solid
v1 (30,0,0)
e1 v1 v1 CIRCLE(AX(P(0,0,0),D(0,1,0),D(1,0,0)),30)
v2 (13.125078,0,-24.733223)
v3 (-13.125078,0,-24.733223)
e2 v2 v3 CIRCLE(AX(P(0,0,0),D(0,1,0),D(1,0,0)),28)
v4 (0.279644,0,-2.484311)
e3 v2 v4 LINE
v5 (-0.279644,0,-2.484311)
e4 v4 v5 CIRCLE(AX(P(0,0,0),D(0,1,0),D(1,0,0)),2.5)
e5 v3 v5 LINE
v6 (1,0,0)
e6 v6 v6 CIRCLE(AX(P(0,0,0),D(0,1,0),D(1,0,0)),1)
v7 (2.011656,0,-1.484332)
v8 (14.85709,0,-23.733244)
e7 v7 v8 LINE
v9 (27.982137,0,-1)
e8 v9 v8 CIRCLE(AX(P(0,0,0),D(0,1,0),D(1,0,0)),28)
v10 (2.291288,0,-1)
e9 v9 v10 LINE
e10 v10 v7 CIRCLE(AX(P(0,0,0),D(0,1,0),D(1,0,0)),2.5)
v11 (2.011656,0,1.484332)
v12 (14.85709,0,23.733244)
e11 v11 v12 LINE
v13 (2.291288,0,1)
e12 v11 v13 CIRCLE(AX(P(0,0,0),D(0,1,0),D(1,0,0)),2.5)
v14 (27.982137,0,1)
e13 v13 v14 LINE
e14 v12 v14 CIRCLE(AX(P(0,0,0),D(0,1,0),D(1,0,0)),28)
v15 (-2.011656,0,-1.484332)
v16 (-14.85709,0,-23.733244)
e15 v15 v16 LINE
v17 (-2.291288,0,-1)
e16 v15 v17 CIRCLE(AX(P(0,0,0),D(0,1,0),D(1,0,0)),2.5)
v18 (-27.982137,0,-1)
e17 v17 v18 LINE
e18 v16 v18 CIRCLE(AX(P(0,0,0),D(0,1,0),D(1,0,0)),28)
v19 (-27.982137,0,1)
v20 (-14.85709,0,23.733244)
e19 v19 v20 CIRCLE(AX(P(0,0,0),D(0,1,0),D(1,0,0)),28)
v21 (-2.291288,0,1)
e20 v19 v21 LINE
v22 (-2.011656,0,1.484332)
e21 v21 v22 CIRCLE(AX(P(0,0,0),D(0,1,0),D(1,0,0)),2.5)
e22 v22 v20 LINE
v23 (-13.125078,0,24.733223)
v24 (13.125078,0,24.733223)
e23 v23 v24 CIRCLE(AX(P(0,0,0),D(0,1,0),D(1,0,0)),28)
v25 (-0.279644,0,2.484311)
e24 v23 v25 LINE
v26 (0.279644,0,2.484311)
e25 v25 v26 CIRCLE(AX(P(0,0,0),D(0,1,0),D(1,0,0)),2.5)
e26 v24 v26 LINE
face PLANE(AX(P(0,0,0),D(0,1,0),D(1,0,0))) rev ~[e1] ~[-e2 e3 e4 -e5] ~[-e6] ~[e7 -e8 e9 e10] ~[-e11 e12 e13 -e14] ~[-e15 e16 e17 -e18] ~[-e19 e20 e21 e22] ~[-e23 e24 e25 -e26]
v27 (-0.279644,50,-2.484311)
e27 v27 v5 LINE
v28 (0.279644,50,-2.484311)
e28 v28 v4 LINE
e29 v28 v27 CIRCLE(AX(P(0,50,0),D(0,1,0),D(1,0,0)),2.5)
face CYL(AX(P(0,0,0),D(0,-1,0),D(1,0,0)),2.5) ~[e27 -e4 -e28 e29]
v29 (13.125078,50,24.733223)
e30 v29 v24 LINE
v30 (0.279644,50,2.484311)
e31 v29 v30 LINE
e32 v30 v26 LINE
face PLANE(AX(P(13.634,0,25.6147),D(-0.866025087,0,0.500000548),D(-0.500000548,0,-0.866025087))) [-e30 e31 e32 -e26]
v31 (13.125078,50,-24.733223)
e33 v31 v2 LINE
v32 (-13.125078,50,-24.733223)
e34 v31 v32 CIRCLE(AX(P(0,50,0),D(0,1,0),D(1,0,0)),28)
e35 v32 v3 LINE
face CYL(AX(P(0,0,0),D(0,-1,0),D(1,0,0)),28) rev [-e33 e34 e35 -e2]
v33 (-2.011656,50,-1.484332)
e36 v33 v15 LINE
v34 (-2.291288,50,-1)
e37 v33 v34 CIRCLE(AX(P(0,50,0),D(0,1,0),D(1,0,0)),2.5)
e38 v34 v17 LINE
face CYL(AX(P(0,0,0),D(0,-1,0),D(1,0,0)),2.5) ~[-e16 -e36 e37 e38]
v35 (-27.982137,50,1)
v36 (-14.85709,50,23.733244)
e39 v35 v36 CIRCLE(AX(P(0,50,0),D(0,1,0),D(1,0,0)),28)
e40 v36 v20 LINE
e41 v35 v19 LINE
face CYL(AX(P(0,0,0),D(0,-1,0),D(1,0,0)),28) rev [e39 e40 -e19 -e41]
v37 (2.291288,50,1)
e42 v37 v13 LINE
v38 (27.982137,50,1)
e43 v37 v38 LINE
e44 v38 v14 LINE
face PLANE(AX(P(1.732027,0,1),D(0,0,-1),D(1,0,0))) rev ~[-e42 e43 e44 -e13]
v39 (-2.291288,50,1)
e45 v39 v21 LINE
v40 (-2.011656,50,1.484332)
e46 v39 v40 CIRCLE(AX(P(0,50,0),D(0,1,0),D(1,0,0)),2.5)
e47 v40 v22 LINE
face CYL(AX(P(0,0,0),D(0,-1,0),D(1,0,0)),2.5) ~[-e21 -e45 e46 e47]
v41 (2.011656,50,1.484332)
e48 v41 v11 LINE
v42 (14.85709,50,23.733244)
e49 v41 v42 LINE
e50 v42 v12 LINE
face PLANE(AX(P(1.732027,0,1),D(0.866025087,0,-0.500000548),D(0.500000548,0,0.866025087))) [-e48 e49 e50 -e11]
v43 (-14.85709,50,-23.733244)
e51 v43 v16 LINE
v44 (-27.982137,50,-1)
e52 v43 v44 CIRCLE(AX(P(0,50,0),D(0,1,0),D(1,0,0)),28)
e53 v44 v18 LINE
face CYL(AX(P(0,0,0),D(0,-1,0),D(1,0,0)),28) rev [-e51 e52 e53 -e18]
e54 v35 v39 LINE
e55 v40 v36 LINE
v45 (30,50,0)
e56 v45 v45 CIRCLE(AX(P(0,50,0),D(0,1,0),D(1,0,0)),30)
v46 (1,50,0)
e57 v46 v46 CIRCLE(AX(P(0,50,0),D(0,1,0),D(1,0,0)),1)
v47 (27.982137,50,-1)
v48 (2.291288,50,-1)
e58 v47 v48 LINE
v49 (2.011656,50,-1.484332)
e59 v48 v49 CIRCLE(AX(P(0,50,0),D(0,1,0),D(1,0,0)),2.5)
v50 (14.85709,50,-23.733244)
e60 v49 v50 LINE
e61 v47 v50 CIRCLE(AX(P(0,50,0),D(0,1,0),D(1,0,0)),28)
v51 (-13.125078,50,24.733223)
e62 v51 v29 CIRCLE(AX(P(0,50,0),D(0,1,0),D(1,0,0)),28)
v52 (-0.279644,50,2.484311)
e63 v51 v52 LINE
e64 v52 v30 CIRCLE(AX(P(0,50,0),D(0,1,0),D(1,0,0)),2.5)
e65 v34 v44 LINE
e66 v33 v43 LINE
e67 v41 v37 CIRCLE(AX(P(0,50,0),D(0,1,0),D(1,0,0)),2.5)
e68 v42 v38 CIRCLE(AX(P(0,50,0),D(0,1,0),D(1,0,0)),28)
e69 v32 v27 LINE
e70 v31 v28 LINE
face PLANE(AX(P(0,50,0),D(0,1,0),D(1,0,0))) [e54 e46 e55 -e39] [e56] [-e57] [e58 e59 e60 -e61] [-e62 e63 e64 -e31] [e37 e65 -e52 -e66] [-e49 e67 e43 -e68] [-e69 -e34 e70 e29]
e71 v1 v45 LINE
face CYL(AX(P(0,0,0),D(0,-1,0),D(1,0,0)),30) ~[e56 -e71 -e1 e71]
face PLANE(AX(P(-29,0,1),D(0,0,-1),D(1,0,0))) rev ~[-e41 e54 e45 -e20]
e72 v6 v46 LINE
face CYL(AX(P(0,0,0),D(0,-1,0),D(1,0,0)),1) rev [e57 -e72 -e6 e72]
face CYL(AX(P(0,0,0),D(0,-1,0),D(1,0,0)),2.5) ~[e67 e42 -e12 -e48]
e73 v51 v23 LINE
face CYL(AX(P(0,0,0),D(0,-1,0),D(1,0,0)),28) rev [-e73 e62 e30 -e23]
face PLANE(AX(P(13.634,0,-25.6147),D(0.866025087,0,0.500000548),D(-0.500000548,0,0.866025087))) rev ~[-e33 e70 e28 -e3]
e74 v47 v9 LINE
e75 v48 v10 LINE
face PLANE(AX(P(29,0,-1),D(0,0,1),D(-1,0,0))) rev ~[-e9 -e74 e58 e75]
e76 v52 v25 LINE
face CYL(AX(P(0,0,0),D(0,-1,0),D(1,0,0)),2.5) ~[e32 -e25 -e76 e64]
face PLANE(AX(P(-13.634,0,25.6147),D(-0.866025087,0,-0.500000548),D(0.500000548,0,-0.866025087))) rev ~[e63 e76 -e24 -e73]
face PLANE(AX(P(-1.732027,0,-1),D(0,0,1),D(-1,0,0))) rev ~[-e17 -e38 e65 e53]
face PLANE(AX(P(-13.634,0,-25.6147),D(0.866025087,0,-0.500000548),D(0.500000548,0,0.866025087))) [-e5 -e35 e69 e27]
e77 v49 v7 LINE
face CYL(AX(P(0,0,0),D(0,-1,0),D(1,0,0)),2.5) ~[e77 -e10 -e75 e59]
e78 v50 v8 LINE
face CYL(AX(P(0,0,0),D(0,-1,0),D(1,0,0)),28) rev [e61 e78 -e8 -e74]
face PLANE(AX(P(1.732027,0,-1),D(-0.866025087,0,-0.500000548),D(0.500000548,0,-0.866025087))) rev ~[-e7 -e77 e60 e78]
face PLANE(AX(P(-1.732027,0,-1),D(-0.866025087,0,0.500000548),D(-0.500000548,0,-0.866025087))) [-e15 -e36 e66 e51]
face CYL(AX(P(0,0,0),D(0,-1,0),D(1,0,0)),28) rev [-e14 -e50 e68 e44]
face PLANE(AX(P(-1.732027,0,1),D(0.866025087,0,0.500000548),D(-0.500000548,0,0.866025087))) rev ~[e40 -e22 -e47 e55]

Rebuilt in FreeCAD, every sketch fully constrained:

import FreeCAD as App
import Part
import Sketcher

V = App.Vector
Q = App.Units.Quantity


def add_polygon(sketch, points):
    """Adds a closed chain of lines whose ends are joined by coincident constraints."""
    first, n = sketch.GeometryCount, len(points)
    for a, b in zip(points, points[1:] + points[:1]):
        sketch.addGeometry(Part.LineSegment(App.Vector(*a, 0), App.Vector(*b, 0)), False)
    for i in range(n):
        sketch.addConstraint(Sketcher.Constraint("Coincident", first + i, 2, first + (i + 1) % n, 1))

doc = App.newDocument("Part")
body = doc.addObject("PartDesign::Body", "Body")
body.AllowCompound = True

sketch1 = body.newObject("Sketcher::SketchObject", "Sketch")
sketch1.AttachmentSupport = (doc.getObject("XZ_Plane"), [""])
sketch1.MapMode = "FlatFace"
sketch1.addGeometry(Part.Circle(V(0, 0, 0), V(0, 0, 1), 30), False)
sketch1.addGeometry(Part.Circle(V(0, 0, 0), V(0, 0, 1), 28), False)
sketch1.addGeometry(Part.Circle(V(0, 0, 0), V(0, 0, 1), 2.5), False)
sketch1.addGeometry(Part.Circle(V(0, 0, 0), V(0, 0, 1), 1), False)
sketch1.addConstraint(Sketcher.Constraint("Coincident", 0, 3, -1, 1))
sketch1.addConstraint(Sketcher.Constraint("Coincident", 1, 3, -1, 1))
sketch1.addConstraint(Sketcher.Constraint("Coincident", 2, 3, -1, 1))
sketch1.addConstraint(Sketcher.Constraint("Coincident", 3, 3, -1, 1))
sketch1.addConstraint(Sketcher.Constraint("Diameter", 0, Q("60 mm")))
sketch1.addConstraint(Sketcher.Constraint("Diameter", 1, Q("56 mm")))
sketch1.addConstraint(Sketcher.Constraint("Diameter", 2, Q("5 mm")))
sketch1.addConstraint(Sketcher.Constraint("Diameter", 3, Q("2 mm")))
pad1 = body.newObject("PartDesign::Pad", "Pad")
pad1.Profile = sketch1
pad1.Length = 50
pad1.Reversed = True

sketch2 = body.newObject("Sketcher::SketchObject", "Sketch001")
sketch2.AttachmentSupport = (doc.getObject("XZ_Plane"), [""])
sketch2.MapMode = "FlatFace"
add_polygon(sketch2, [(-15.366, 24.6147), (-13.634, 25.6147), (0, 1.999954), (-0.577324, 1), (-1.732027, 1)])
add_polygon(sketch2, [(0.577324, 1), (0, 1.999954), (13.634, 25.6147), (15.366, 24.6147), (1.732027, 1)])
add_polygon(sketch2, [(-29, 1), (-1.732027, 1), (-1.154676, 0), (-1.732027, -1), (-29, -1)])
add_polygon(sketch2, [(1.732027, -1), (1.154676, 0), (1.732027, 1), (29, 1), (29, -1)])
add_polygon(sketch2, [(0.577324, -1), (1.732027, -1), (15.366, -24.6147), (13.634, -25.6147), (0, -1.999954)])
add_polygon(sketch2, [(-1.732027, -1), (-0.577324, -1), (0, -1.999954), (-13.634, -25.6147), (-15.366, -24.6147)])
sketch2.addConstraint(Sketcher.Constraint("Horizontal", 3))
sketch2.addConstraint(Sketcher.Constraint("Horizontal", 9))
sketch2.addConstraint(Sketcher.Constraint("Horizontal", 10))
sketch2.addConstraint(Sketcher.Constraint("Horizontal", 13))
sketch2.addConstraint(Sketcher.Constraint("Vertical", 14))
sketch2.addConstraint(Sketcher.Constraint("Horizontal", 17))
sketch2.addConstraint(Sketcher.Constraint("Vertical", 18))
sketch2.addConstraint(Sketcher.Constraint("Horizontal", 19))
sketch2.addConstraint(Sketcher.Constraint("Horizontal", 20))
sketch2.addConstraint(Sketcher.Constraint("Horizontal", 25))
sketch2.addConstraint(Sketcher.Constraint("Coincident", 5, 2, 1, 2))
sketch2.addConstraint(Sketcher.Constraint("Coincident", 10, 2, 3, 2))
sketch2.addConstraint(Sketcher.Constraint("Coincident", 16, 2, 8, 2))
sketch2.addConstraint(Sketcher.Constraint("Coincident", 20, 2, 19, 2))
sketch2.addConstraint(Sketcher.Constraint("Coincident", 26, 2, 23, 2))
sketch2.addConstraint(Sketcher.Constraint("Coincident", 29, 2, 12, 2))
sketch2.addConstraint(Sketcher.Constraint("Symmetric", 8, 2, 12, 2, -1, 1))
sketch2.addConstraint(Sketcher.Constraint("Symmetric", 11, 2, 15, 2, -1, 1))
sketch2.addConstraint(Sketcher.Constraint("Symmetric", 14, 2, 18, 2, -1, 1))
sketch2.addConstraint(Sketcher.Constraint("Symmetric", 4, 2, 21, 2, -1, 1))
sketch2.addConstraint(Sketcher.Constraint("Symmetric", 0, 2, 22, 2, -1, 1))
sketch2.addConstraint(Sketcher.Constraint("Symmetric", 1, 2, 23, 2, -1, 1))
sketch2.addConstraint(Sketcher.Constraint("Symmetric", 6, 2, 27, 2, -1, 1))
sketch2.addConstraint(Sketcher.Constraint("Symmetric", 7, 2, 28, 2, -1, 1))
sketch2.addConstraint(Sketcher.Constraint("Symmetric", 0, 2, 6, 2, -2))
sketch2.addConstraint(Sketcher.Constraint("Symmetric", 4, 2, 7, 2, -2))
sketch2.addConstraint(Sketcher.Constraint("Symmetric", 3, 2, 8, 2, -2))
sketch2.addConstraint(Sketcher.Constraint("PointOnObject", 1, 2, -2))
sketch2.addConstraint(Sketcher.Constraint("PointOnObject", 11, 2, -1))
sketch2.addConstraint(Sketcher.Constraint("Perpendicular", 0, 1))
sketch2.addConstraint(Sketcher.Constraint("Parallel", 1, 4))
sketch2.addConstraint(Sketcher.Constraint("Parallel", 4, 5))
sketch2.addConstraint(Sketcher.Constraint("Parallel", 2, 6))
sketch2.addConstraint(Sketcher.Constraint("Parallel", 5, 11))
sketch2.addConstraint(Sketcher.Constraint("Parallel", 11, 15))
sketch2.addConstraint(Sketcher.Constraint("Parallel", 16, 24))
sketch2.addConstraint(Sketcher.Constraint("Parallel", 23, 26))
sketch2.addConstraint(Sketcher.Constraint("Equal", 1, 4))
sketch2.addConstraint(Sketcher.Constraint("Equal", 5, 11))
sketch2.addConstraint(Sketcher.Constraint("DistanceY", 14, 1, 14, 2, Q("2 mm")))
sketch2.addConstraint(Sketcher.Constraint("Distance", 0, Q("2 mm")))
sketch2.addConstraint(Sketcher.Constraint("DistanceX", 13, 2, -1, 1, Q("29 mm")))
sketch2.addConstraint(Sketcher.Constraint("DistanceX", 0, 2, 7, 2, Q("29 mm")))
pad2 = body.newObject("PartDesign::Pad", "Pad001")
pad2.Profile = sketch2
pad2.Length = 50
pad2.Reversed = True

doc.recompute()
